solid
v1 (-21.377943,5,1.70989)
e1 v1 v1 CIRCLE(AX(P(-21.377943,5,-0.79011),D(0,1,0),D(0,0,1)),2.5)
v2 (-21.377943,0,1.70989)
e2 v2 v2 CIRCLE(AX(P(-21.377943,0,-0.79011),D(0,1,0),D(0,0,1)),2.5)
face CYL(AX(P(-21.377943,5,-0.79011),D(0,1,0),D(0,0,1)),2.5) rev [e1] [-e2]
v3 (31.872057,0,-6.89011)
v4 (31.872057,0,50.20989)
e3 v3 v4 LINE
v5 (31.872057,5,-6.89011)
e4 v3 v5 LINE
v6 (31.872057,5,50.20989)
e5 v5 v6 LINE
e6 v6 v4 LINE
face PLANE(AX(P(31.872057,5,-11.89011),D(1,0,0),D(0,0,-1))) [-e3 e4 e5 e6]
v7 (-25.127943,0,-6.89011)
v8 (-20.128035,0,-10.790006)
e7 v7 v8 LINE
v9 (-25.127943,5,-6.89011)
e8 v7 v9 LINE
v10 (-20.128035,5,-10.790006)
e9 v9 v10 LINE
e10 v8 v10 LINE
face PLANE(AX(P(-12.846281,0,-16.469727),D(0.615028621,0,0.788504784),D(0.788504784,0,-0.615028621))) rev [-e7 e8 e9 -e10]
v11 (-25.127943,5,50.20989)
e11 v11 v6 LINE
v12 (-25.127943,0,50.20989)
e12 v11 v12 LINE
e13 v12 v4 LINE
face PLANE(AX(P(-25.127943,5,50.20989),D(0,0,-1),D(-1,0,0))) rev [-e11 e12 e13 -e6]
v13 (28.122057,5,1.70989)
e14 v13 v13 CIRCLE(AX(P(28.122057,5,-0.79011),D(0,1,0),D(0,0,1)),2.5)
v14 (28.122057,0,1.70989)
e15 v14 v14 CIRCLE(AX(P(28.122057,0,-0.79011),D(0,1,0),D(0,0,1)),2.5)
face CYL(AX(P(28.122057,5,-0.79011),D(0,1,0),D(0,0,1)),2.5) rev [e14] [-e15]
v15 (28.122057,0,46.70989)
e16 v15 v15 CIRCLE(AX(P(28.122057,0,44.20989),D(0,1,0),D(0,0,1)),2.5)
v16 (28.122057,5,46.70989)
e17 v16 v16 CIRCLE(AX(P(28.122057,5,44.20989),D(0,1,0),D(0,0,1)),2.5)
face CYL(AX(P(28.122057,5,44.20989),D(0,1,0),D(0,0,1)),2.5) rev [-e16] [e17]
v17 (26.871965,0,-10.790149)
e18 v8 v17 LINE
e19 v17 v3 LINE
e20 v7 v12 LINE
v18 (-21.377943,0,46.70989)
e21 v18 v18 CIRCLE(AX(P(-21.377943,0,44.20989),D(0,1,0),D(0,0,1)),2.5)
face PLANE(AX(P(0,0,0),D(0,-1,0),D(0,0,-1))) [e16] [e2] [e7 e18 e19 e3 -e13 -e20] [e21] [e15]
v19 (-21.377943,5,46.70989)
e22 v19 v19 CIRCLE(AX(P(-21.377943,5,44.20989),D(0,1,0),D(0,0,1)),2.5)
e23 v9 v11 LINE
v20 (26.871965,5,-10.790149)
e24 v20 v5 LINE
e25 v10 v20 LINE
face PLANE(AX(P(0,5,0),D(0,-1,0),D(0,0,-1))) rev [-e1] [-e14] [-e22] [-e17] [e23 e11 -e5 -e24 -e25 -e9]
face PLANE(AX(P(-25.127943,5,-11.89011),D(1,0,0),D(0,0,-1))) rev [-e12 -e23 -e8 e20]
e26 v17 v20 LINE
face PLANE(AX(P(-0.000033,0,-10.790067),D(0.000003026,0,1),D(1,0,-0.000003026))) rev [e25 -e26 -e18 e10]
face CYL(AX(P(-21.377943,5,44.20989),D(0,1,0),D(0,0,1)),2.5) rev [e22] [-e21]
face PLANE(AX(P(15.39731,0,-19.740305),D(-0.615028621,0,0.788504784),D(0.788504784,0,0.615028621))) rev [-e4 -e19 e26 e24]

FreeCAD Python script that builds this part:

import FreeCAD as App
import Part
import Sketcher
from FreeCAD import Vector
Q = App.Units.Quantity

doc = App.newDocument("Part")
body = doc.addObject("PartDesign::Body", "Body")

# Sketch on XZ plane
sketch1 = body.newObject("Sketcher::SketchObject", "Sketch")
sketch1.AttachmentSupport = (doc.getObject("XZ_Plane"), [""])
sketch1.MapMode = "FlatFace"
sketch1.addGeometry([
    Part.LineSegment(Vector(-25, -12, 0), Vector(-25, 50, 0)),  # 0
    Part.LineSegment(Vector(-25, 50, 0), Vector(32, 50, 0)),  # 1
    Part.LineSegment(Vector(32, 50, 0), Vector(32, -12, 0)),  # 2
    Part.LineSegment(Vector(32, -12, 0), Vector(-25, -12, 0)),  # 3
    Part.LineSegment(Vector(24, 43, 0), Vector(-18, 43, 0)),  # 4
    Part.LineSegment(Vector(-18, 43, 0), Vector(-18, -7, 0)),  # 5
    Part.LineSegment(Vector(-18, -7, 0), Vector(24, -7, 0)),  # 6
    Part.LineSegment(Vector(24, -7, 0), Vector(24, 43, 0)),  # 7
], False)
sketch1.addConstraint([
    Sketcher.Constraint("Coincident", 0, 2, 1, 1),
    Sketcher.Constraint("Coincident", 1, 2, 2, 1),
    Sketcher.Constraint("Coincident", 2, 2, 3, 1),
    Sketcher.Constraint("Coincident", 3, 2, 0, 1),
    Sketcher.Constraint("Coincident", 4, 2, 5, 1),
    Sketcher.Constraint("Coincident", 5, 2, 6, 1),
    Sketcher.Constraint("Coincident", 6, 2, 7, 1),
    Sketcher.Constraint("Coincident", 7, 2, 4, 1),
    Sketcher.Constraint("Vertical", 0),
    Sketcher.Constraint("Horizontal", 1),
    Sketcher.Constraint("Vertical", 2),
    Sketcher.Constraint("Horizontal", 3),
    Sketcher.Constraint("Horizontal", 4),
    Sketcher.Constraint("Vertical", 5),
    Sketcher.Constraint("Horizontal", 6),
    Sketcher.Constraint("Vertical", 7),
    Sketcher.Constraint("DistanceX", 1, 1, 1, 2, Q("57 mm")),
    Sketcher.Constraint("DistanceX", 4, 2, 4, 1, Q("42 mm")),
    Sketcher.Constraint("DistanceY", 0, 1, 0, 2, Q("62.1 mm")),
    Sketcher.Constraint("DistanceY", 5, 2, 5, 1, Q("49.6 mm")),
    Sketcher.Constraint("DistanceY", 3, 2, 5, 2, Q("5 mm")),
    Sketcher.Constraint("DistanceX", 0, 2, 4, 2, Q("7.5 mm")),
    Sketcher.Constraint("DistanceY", -1, 1, 0, 2, Q("50.20989 mm")),
    Sketcher.Constraint("DistanceX", 0, 2, -1, 1, Q("25.127943 mm")),
])
pad1 = body.newObject("PartDesign::Pad", "Pad")
pad1.Profile = sketch1
pad1.Length = 5
pad1.Reversed = True

# Sketch on XZ plane
sketch2 = body.newObject("Sketcher::SketchObject", "Sketch001")
sketch2.AttachmentSupport = (doc.getObject("XZ_Plane"), [""])
sketch2.MapMode = "FlatFace"
sketch2.addGeometry([
    Part.LineSegment(Vector(-18, 43, 0), Vector(-18, -7, 0)),
    Part.LineSegment(Vector(-18, -7, 0), Vector(24, -7, 0)),
    Part.LineSegment(Vector(24, -7, 0), Vector(24, 43, 0)),
    Part.LineSegment(Vector(24, 43, 0), Vector(-18, 43, 0)),
], False)
sketch2.addConstraint([
    Sketcher.Constraint("Coincident", 0, 2, 1, 1),
    Sketcher.Constraint("Coincident", 1, 2, 2, 1),
    Sketcher.Constraint("Coincident", 2, 2, 3, 1),
    Sketcher.Constraint("Coincident", 3, 2, 0, 1),
    Sketcher.Constraint("Vertical", 0),
    Sketcher.Constraint("Horizontal", 1),
    Sketcher.Constraint("Vertical", 2),
    Sketcher.Constraint("Horizontal", 3),
    Sketcher.Constraint("DistanceX", 1, 1, 1, 2, Q("42 mm")),
    Sketcher.Constraint("DistanceY", 0, 2, 0, 1, Q("49.6 mm")),
    Sketcher.Constraint("DistanceY", 0, 2, -1, 1, Q("6.89011 mm")),
    Sketcher.Constraint("DistanceX", 0, 2, -1, 1, Q("17.627943 mm")),
])
pad2 = body.newObject("PartDesign::Pad", "Pad001")
pad2.Profile = sketch2
pad2.Length = 5
pad2.Reversed = True

# Sketch on XZ plane
sketch3 = body.newObject("Sketcher::SketchObject", "Sketch002")
sketch3.AttachmentSupport = (doc.getObject("XZ_Plane"), [""])
sketch3.MapMode = "FlatFace"
sketch3.AttachmentOffset = App.Placement(Vector(0, 0, -5), App.Rotation())
sketch3.addGeometry([
    Part.Circle(Vector(-21.4, -0.8, 0), Vector(0, 0, 1), 2.5),
    Part.Circle(Vector(-21.4, 44.2, 0), Vector(0, 0, 1), 2.5),
    Part.Circle(Vector(28.1, 44.2, 0), Vector(0, 0, 1), 2.5),
    Part.Circle(Vector(28.1, -0.8, 0), Vector(0, 0, 1), 2.5),
], False)
sketch3.addConstraint([
    Sketcher.Constraint("Equal", 0, 1),
    Sketcher.Constraint("Equal", 1, 2),
    Sketcher.Constraint("Equal", 2, 3),
    Sketcher.Constraint("Horizontal", 1, 3, 2, 3),
    Sketcher.Constraint("Horizontal", 0, 3, 3, 3),
    Sketcher.Constraint("Vertical", 0, 3, 1, 3),
    Sketcher.Constraint("Vertical", 2, 3, 3, 3),
    Sketcher.Constraint("Diameter", 0, Q("5 mm")),
    Sketcher.Constraint("DistanceY", 0, 3, 1, 3, Q("45 mm")),
    Sketcher.Constraint("DistanceX", 1, 3, 2, 3, Q("49.5 mm")),
    Sketcher.Constraint("DistanceY", 0, 3, -1, 1, Q("0.79011 mm")),
    Sketcher.Constraint("DistanceX", 0, 3, -1, 1, Q("21.377943 mm")),
])
doc.recompute()
hole = body.newObject("PartDesign::Hole", "Hole")
hole.Profile = sketch3
hole.ThreadType = "None"
hole.Diameter = 5
hole.DepthType = "ThroughAll"
hole.Reversed = True

# Sketch on XZ plane
sketch4 = body.newObject("Sketcher::SketchObject", "Sketch003")
sketch4.AttachmentSupport = (doc.getObject("XZ_Plane"), [""])
sketch4.MapMode = "FlatFace"
sketch4.AttachmentOffset = App.Placement(Vector(0, 0, -5), App.Rotation())
sketch4.addGeometry([
    Part.LineSegment(Vector(-25, -12, 0), Vector(-25, -7, 0)),  # 0
    Part.LineSegment(Vector(-25, -7, 0), Vector(-20, -11, 0)),  # 1
    Part.LineSegment(Vector(-20, -11, 0), Vector(27, -11, 0)),  # 2
    Part.LineSegment(Vector(27, -11, 0), Vector(32, -7, 0)),  # 3
    Part.LineSegment(Vector(32, -7, 0), Vector(32, -12, 0)),  # 4
    Part.LineSegment(Vector(32, -12, 0), Vector(-25, -12, 0)),  # 5
], False)
sketch4.addConstraint([
    Sketcher.Constraint("Coincident", 0, 2, 1, 1),
    Sketcher.Constraint("Coincident", 1, 2, 2, 1),
    Sketcher.Constraint("Coincident", 2, 2, 3, 1),
    Sketcher.Constraint("Coincident", 3, 2, 4, 1),
    Sketcher.Constraint("Coincident", 4, 2, 5, 1),
    Sketcher.Constraint("Coincident", 5, 2, 0, 1),
    Sketcher.Constraint("Vertical", 0),
    Sketcher.Constraint("Vertical", 4),
    Sketcher.Constraint("Horizontal", 5),
    Sketcher.Constraint("Horizontal", 0, 2, 3, 2),
    Sketcher.Constraint("DistanceX", 5, 2, 5, 1, Q("57 mm")),
    Sketcher.Constraint("DistanceY", 0, 1, 0, 2, Q("5 mm")),
    Sketcher.Constraint("Distance", 2, Q("47 mm")),
    Sketcher.Constraint("Distance", 1, Q("6.341 mm")),
    Sketcher.Constraint("Distance", 3, Q("6.341231 mm")),
    Sketcher.Constraint("DistanceY", 0, 2, -1, 1, Q("6.89011 mm")),
    Sketcher.Constraint("DistanceY", 2, 2, -1, 1, Q("10.790149 mm")),
    Sketcher.Constraint("DistanceX", 0, 2, -1, 1, Q("25.127943 mm")),
])
pocket1 = body.newObject("PartDesign::Pocket", "Pocket")
pocket1.Profile = sketch4
pocket1.Length = 5
pocket1.Reversed = True

doc.recompute()
